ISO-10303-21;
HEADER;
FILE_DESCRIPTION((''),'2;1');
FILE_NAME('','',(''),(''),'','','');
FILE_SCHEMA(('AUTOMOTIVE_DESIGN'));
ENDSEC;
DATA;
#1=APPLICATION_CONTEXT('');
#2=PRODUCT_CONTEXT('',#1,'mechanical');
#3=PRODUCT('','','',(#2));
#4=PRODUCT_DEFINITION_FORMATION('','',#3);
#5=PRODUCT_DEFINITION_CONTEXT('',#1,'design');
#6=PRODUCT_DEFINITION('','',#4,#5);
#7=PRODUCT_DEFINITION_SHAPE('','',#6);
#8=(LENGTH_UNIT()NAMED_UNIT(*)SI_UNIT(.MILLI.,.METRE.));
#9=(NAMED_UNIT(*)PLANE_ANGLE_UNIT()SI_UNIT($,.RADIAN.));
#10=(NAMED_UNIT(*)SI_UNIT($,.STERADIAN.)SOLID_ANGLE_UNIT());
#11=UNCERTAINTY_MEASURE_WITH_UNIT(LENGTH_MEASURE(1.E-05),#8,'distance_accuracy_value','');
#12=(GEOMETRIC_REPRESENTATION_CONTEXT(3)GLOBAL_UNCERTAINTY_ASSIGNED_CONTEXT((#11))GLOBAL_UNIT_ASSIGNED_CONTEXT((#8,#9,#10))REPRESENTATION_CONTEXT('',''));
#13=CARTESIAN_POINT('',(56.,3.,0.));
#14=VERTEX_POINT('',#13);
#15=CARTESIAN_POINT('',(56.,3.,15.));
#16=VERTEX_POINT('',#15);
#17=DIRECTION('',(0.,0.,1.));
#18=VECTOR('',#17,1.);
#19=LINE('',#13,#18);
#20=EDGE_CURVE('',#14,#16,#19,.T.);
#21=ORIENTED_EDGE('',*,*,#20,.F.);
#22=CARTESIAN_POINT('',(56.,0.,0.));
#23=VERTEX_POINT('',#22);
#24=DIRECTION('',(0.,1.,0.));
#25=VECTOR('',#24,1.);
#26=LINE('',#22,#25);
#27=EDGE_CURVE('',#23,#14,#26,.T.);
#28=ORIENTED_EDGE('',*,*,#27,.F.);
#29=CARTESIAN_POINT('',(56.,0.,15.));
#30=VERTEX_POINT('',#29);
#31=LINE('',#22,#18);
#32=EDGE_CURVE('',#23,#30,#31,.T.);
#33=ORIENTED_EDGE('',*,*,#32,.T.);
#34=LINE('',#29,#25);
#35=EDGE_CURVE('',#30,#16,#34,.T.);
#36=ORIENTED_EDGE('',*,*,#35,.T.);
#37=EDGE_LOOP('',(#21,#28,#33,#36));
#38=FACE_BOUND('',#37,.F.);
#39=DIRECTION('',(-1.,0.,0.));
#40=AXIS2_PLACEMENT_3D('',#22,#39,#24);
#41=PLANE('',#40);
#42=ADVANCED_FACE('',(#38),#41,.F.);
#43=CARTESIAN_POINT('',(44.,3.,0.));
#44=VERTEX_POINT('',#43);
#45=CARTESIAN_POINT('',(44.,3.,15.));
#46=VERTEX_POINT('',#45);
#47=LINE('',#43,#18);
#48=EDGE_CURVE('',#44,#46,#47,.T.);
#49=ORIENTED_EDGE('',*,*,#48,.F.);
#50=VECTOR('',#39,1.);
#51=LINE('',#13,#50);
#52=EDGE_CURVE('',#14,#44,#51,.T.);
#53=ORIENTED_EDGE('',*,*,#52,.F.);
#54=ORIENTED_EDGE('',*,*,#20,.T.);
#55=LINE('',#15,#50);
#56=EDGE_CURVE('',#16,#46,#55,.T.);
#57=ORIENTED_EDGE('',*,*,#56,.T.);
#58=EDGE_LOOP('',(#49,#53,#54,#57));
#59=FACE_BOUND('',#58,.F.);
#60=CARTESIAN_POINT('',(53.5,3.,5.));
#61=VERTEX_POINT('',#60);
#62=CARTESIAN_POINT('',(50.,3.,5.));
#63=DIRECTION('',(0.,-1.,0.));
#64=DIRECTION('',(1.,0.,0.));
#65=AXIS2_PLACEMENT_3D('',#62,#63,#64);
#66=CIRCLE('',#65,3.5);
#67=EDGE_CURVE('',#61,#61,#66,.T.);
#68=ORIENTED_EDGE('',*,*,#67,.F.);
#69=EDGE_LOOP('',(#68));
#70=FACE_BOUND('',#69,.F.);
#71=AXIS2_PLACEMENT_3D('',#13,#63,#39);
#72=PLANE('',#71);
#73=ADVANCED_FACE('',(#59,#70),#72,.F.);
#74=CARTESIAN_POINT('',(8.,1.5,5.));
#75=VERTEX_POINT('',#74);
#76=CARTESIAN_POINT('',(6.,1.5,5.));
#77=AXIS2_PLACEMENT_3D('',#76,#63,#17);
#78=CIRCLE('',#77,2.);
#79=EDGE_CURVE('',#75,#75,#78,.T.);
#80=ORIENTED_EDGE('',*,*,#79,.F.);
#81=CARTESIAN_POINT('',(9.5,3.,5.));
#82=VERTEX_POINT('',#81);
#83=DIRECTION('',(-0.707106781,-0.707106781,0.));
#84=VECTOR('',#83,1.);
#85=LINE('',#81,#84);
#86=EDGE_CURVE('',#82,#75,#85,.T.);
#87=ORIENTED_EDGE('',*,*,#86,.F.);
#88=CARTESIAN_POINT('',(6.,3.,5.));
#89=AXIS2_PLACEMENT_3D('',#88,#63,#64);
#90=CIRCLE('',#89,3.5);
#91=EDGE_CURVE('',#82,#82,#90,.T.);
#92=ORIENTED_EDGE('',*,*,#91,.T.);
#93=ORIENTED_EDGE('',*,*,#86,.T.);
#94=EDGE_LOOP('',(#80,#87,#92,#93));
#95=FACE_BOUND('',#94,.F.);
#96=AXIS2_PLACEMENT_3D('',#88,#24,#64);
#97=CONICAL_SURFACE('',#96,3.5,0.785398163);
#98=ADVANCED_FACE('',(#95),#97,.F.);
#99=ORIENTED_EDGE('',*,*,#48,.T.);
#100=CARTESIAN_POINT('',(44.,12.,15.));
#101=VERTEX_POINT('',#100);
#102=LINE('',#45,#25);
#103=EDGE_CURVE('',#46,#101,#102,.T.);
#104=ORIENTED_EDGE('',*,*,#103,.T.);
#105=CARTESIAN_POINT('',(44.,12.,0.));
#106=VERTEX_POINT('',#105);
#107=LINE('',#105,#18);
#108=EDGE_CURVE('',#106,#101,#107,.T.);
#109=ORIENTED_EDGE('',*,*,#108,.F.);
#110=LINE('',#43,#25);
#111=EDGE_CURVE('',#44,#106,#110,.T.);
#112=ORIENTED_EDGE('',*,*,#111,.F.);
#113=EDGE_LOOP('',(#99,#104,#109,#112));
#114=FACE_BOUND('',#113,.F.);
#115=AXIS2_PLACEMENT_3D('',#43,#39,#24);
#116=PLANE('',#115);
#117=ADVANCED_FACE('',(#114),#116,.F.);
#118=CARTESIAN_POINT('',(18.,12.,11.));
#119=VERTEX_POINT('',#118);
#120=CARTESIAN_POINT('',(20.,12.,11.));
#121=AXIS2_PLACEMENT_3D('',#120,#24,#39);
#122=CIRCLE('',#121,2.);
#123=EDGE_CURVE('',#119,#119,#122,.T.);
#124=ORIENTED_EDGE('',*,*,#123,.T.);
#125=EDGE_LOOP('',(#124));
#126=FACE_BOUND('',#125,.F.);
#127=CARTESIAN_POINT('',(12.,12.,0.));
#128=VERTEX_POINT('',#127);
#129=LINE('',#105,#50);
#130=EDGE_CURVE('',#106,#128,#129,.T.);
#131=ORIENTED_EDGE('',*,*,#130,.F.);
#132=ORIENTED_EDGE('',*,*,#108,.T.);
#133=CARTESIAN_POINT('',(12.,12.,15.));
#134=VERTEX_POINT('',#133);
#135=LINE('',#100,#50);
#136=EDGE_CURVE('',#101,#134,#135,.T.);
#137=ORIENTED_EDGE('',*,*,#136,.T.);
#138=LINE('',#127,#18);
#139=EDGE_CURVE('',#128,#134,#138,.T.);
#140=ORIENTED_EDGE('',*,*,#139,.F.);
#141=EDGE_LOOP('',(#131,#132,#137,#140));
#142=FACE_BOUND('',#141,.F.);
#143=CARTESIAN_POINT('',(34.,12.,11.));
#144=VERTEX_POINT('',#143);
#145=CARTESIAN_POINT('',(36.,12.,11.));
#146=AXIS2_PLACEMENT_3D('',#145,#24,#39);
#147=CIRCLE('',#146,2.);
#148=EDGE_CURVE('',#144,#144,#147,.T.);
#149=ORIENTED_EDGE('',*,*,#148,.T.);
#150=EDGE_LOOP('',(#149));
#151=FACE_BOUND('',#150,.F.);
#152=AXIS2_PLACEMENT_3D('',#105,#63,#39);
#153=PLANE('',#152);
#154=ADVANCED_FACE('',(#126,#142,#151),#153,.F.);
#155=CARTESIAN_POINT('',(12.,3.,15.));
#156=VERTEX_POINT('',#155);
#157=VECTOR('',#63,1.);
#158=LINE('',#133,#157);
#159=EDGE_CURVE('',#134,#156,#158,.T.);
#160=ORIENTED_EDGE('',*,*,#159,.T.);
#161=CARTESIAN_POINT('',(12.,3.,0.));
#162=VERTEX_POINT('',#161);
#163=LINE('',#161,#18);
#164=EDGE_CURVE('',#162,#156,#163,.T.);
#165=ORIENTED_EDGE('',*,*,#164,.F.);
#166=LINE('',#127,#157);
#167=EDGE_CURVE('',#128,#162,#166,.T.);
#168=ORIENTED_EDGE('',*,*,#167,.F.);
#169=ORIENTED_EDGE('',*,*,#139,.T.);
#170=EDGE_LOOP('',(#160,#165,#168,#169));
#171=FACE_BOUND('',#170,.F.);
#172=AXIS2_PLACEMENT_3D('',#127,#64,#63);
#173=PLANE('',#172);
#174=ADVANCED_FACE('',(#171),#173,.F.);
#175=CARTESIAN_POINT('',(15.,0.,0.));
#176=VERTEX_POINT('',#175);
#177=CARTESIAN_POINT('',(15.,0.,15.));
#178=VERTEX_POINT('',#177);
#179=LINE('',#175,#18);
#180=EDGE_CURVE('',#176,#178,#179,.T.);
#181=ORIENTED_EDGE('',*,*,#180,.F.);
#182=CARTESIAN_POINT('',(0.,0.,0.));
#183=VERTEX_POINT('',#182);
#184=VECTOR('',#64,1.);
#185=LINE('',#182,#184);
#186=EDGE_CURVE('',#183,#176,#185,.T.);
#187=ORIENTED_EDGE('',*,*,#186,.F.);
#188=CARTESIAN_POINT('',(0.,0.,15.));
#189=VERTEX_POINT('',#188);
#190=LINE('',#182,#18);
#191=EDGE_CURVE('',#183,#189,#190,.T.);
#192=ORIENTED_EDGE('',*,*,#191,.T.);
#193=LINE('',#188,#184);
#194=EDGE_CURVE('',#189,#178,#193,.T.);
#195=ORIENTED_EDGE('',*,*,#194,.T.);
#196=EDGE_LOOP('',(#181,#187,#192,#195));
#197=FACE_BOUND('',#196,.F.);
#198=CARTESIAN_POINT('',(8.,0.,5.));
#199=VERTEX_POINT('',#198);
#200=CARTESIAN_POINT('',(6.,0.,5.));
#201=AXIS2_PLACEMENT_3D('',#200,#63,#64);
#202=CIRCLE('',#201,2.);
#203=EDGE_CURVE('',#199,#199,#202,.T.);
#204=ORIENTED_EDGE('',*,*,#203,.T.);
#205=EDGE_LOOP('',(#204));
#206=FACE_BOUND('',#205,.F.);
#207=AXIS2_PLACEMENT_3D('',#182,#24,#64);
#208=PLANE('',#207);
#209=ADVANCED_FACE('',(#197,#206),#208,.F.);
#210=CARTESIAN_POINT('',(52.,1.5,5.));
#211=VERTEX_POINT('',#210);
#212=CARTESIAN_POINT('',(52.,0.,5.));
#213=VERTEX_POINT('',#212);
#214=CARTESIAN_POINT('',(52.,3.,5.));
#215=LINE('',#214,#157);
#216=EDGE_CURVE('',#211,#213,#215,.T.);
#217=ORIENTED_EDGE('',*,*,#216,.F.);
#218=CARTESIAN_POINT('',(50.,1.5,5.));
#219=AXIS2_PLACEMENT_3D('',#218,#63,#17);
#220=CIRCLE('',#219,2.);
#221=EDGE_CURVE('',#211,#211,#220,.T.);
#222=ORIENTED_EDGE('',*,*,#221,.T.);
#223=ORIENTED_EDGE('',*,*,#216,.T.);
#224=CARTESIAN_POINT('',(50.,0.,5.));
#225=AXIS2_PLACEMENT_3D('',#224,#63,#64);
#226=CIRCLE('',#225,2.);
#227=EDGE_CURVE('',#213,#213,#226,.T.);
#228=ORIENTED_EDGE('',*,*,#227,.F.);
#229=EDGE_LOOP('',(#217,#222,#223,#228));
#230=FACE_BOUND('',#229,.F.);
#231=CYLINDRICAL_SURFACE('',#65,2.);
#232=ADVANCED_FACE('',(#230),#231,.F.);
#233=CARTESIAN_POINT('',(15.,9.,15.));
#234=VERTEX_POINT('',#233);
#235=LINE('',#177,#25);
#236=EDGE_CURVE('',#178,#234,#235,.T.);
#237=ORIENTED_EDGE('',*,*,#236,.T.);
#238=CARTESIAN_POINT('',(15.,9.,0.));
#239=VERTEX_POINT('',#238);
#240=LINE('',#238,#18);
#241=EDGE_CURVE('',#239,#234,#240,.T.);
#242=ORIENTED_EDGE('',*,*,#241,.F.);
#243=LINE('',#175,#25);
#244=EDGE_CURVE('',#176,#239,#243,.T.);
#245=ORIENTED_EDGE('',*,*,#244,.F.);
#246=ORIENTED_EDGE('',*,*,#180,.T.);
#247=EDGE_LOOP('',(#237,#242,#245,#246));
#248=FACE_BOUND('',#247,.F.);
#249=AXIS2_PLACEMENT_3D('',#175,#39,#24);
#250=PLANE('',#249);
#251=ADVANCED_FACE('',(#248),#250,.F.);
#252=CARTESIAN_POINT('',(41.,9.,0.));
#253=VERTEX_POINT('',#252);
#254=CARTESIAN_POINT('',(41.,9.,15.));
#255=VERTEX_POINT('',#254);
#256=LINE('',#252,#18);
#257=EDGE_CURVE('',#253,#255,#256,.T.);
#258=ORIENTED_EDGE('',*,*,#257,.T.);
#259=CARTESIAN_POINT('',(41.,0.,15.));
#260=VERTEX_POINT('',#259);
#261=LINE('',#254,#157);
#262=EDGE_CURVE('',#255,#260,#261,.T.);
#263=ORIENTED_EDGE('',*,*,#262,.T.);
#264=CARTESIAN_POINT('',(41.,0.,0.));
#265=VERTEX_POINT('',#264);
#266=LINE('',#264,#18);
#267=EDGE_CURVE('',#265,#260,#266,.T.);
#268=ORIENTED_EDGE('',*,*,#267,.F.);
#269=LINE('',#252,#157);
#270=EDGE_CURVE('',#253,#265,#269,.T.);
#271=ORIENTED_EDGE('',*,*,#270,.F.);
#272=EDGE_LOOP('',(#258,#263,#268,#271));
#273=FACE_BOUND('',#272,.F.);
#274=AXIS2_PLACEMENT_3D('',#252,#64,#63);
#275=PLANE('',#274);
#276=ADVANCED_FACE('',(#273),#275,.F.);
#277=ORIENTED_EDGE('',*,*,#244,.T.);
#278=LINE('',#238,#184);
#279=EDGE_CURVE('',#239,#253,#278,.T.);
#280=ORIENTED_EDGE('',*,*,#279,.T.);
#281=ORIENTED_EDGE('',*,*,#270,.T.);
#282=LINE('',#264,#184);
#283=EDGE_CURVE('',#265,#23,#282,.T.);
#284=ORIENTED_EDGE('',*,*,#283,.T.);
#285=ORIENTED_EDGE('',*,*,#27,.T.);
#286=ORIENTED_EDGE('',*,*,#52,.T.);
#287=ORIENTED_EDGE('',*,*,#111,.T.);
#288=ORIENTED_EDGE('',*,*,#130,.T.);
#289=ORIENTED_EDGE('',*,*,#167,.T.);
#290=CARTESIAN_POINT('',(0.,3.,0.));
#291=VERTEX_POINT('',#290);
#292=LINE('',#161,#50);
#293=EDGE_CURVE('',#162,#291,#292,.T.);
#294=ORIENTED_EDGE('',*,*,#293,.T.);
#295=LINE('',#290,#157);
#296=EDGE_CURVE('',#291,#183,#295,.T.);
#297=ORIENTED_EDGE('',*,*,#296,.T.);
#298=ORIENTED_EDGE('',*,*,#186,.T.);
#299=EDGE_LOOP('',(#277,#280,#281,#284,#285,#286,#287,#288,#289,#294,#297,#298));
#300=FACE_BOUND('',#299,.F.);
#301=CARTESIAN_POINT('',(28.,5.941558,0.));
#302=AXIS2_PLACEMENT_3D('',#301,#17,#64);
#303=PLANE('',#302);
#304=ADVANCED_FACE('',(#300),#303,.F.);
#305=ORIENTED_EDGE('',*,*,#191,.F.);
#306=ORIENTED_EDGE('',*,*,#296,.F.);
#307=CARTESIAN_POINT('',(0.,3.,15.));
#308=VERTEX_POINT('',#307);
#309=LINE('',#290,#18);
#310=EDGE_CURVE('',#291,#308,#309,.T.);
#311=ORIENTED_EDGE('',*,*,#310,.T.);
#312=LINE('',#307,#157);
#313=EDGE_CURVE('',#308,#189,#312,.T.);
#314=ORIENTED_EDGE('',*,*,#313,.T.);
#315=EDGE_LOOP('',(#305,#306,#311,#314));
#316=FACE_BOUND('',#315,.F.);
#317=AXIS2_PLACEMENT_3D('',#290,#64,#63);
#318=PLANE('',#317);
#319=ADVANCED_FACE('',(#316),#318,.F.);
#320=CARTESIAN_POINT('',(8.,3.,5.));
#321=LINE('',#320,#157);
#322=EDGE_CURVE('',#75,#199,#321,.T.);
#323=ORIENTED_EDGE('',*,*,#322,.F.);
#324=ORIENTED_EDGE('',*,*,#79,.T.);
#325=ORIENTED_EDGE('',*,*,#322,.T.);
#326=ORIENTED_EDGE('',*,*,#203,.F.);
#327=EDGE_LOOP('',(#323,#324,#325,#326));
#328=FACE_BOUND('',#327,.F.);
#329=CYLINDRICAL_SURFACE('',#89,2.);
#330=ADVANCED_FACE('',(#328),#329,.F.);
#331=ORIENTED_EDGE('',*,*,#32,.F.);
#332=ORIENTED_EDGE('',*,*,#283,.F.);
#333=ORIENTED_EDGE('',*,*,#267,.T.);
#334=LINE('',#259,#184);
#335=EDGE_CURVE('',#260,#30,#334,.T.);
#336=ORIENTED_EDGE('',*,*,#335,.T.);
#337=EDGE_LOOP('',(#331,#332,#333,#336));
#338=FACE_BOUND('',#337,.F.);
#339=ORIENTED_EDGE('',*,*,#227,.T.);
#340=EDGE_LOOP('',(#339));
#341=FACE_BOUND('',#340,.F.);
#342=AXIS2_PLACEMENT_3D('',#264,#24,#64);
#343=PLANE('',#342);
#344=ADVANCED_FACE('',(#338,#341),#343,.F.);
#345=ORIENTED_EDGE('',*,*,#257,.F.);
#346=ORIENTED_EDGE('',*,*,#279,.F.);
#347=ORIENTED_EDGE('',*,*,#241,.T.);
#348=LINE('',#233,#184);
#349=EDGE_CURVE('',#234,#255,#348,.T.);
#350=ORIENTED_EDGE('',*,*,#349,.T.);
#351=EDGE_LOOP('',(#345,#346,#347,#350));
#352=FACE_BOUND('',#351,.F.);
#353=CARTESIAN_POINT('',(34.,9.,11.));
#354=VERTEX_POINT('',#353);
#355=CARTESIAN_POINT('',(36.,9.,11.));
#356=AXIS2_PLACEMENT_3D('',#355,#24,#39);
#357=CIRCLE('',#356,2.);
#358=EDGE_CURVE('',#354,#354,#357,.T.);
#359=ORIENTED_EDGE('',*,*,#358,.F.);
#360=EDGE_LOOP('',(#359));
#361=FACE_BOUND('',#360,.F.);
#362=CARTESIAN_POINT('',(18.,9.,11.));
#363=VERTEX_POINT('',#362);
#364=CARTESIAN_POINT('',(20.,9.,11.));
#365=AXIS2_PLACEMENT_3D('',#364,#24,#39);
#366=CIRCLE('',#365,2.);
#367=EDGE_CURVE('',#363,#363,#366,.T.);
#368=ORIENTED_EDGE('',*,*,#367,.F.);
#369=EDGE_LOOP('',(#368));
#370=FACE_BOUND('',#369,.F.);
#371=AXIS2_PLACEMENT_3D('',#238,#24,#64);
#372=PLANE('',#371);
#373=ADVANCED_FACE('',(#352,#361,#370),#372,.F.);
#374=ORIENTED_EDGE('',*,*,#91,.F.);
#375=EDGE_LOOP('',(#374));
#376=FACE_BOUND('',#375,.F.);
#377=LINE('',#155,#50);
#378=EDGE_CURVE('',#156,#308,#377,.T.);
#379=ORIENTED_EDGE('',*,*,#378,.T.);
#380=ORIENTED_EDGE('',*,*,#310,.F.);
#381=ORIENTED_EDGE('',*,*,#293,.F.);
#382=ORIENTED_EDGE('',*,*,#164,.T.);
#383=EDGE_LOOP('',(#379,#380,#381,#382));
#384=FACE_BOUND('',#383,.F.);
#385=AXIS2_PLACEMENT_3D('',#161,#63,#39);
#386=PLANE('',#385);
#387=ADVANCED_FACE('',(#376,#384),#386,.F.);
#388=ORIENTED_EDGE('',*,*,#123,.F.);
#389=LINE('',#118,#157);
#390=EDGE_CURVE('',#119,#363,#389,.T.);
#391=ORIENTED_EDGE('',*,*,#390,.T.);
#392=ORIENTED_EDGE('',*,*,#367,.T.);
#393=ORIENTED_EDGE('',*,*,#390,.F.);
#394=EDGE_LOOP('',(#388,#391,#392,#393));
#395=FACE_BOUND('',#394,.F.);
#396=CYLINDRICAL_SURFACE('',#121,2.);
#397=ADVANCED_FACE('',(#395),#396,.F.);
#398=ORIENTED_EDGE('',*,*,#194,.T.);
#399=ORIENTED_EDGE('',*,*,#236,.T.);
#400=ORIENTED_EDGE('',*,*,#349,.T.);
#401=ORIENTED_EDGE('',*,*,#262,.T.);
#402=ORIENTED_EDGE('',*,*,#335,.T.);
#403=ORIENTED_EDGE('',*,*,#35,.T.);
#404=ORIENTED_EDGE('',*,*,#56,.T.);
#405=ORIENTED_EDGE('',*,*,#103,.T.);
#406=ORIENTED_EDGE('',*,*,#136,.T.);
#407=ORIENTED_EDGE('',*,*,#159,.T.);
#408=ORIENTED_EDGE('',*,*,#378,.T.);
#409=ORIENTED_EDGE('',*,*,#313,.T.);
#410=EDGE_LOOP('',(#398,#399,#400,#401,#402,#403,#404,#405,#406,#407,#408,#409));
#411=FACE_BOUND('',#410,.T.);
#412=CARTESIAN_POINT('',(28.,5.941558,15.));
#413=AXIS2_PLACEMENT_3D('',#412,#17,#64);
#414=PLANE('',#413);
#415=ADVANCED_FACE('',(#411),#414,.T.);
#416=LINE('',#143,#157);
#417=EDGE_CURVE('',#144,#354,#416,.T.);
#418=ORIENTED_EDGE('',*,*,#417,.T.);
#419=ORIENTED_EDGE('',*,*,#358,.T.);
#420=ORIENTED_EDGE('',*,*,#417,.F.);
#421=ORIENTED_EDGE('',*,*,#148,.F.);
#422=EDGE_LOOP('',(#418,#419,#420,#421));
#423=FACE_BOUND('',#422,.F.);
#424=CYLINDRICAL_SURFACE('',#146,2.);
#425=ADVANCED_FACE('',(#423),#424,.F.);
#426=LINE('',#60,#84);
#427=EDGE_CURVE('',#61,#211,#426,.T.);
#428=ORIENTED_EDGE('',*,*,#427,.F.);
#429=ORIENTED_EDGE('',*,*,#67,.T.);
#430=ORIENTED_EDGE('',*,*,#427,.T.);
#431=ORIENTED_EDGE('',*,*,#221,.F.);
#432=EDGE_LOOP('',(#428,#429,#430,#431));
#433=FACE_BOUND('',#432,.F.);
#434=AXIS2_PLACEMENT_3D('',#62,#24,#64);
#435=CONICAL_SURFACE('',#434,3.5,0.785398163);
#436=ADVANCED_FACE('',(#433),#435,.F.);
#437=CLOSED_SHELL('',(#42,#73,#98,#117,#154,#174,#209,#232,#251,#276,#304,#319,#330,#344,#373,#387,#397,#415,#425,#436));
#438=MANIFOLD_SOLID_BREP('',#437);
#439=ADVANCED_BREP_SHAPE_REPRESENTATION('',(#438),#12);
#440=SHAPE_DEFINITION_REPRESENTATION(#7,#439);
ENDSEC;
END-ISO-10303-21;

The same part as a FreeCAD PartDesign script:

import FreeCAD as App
import Part
import Sketcher

V = App.Vector
Q = App.Units.Quantity

doc = App.newDocument("Part")
body = doc.addObject("PartDesign::Body", "Body")

# Sketch on XY plane
sketch1 = body.newObject("Sketcher::SketchObject", "Sketch")
sketch1.AttachmentSupport = (doc.getObject("XY_Plane"), [""])
sketch1.MapMode = "FlatFace"
sketch1.addGeometry([
    Part.LineSegment(V(0, 3, 0), V(0, 0, 0)),  # 0
    Part.LineSegment(V(0, 0, 0), V(15, 0, 0)),  # 1
    Part.LineSegment(V(15, 0, 0), V(15, 9, 0)),  # 2
    Part.LineSegment(V(15, 9, 0), V(41, 9, 0)),  # 3
    Part.LineSegment(V(41, 9, 0), V(41, 0, 0)),  # 4
    Part.LineSegment(V(41, 0, 0), V(56, 0, 0)),  # 5
    Part.LineSegment(V(56, 0, 0), V(56, 3, 0)),  # 6
    Part.LineSegment(V(56, 3, 0), V(44, 3, 0)),  # 7
    Part.LineSegment(V(44, 3, 0), V(44, 12, 0)),  # 8
    Part.LineSegment(V(44, 12, 0), V(12, 12, 0)),  # 9
    Part.LineSegment(V(12, 12, 0), V(12, 3, 0)),  # 10
    Part.LineSegment(V(12, 3, 0), V(0, 3, 0)),  # 11
], False)
sketch1.addConstraint([
    Sketcher.Constraint("Coincident", 0, 2, 1, 1),
    Sketcher.Constraint("Coincident", 1, 2, 2, 1),
    Sketcher.Constraint("Coincident", 2, 2, 3, 1),
    Sketcher.Constraint("Coincident", 3, 2, 4, 1),
    Sketcher.Constraint("Coincident", 4, 2, 5, 1),
    Sketcher.Constraint("Coincident", 5, 2, 6, 1),
    Sketcher.Constraint("Coincident", 6, 2, 7, 1),
    Sketcher.Constraint("Coincident", 7, 2, 8, 1),
    Sketcher.Constraint("Coincident", 8, 2, 9, 1),
    Sketcher.Constraint("Coincident", 9, 2, 10, 1),
    Sketcher.Constraint("Coincident", 10, 2, 11, 1),
    Sketcher.Constraint("Coincident", 11, 2, 0, 1),
    Sketcher.Constraint("Vertical", 0),
    Sketcher.Constraint("Horizontal", 1),
    Sketcher.Constraint("Vertical", 2),
    Sketcher.Constraint("Horizontal", 3),
    Sketcher.Constraint("Vertical", 4),
    Sketcher.Constraint("Horizontal", 5),
    Sketcher.Constraint("Vertical", 6),
    Sketcher.Constraint("Horizontal", 7),
    Sketcher.Constraint("Vertical", 8),
    Sketcher.Constraint("Horizontal", 9),
    Sketcher.Constraint("Vertical", 10),
    Sketcher.Constraint("Horizontal", 11),
    Sketcher.Constraint("Coincident", 0, 2, -1, 1),
    Sketcher.Constraint("PointOnObject", 4, 2, -1),
    Sketcher.Constraint("Horizontal", 7, 2, 10, 2),
    Sketcher.Constraint("Equal", 1, 5),
    Sketcher.Constraint("Equal", 7, 11),
    Sketcher.Constraint("Equal", 4, 8),
    Sketcher.Constraint("DistanceX", 1, 1, 1, 2, Q("15 mm")),
    Sketcher.Constraint("DistanceX", 3, 1, 3, 2, Q("26 mm")),
    Sketcher.Constraint("DistanceX", 7, 2, 7, 1, Q("12 mm")),
    Sketcher.Constraint("DistanceY", 0, 2, 0, 1, Q("3 mm")),
    Sketcher.Constraint("DistanceY", 2, 1, 2, 2, Q("9 mm")),
])
pad1 = body.newObject("PartDesign::Pad", "Pad")
pad1.Profile = sketch1
pad1.Length = 15

# Sketch on XZ plane
sketch2 = body.newObject("Sketcher::SketchObject", "Sketch001")
sketch2.AttachmentSupport = (doc.getObject("XZ_Plane"), [""])
sketch2.MapMode = "FlatFace"
sketch2.AttachmentOffset = App.Placement(V(0, 0, -12), App.Rotation())
sketch2.addGeometry([
    Part.Circle(V(36, 11, 0), V(0, 0, 1), 2),
    Part.Circle(V(20, 11, 0), V(0, 0, 1), 2),
], False)
sketch2.addConstraint([
    Sketcher.Constraint("Equal", 0, 1),
    Sketcher.Constraint("Horizontal", 0, 3, 1, 3),
    Sketcher.Constraint("Diameter", 0, Q("4 mm")),
    Sketcher.Constraint("DistanceX", -1, 1, 0, 3, Q("36 mm")),
    Sketcher.Constraint("DistanceY", -1, 1, 0, 3, Q("11 mm")),
    Sketcher.Constraint("DistanceX", -1, 1, 1, 3, Q("20 mm")),
])
pocket1 = body.newObject("PartDesign::Pocket", "Pocket")
pocket1.Profile = sketch2
pocket1.Length = 25
pocket1.Reversed = True

# Sketch on XZ plane
sketch3 = body.newObject("Sketcher::SketchObject", "Sketch002")
sketch3.AttachmentSupport = (doc.getObject("XZ_Plane"), [""])
sketch3.MapMode = "FlatFace"
sketch3.AttachmentOffset = App.Placement(V(0, 0, -3), App.Rotation())
sketch3.addGeometry([
    Part.Circle(V(6, 5, 0), V(0, 0, 1), 2),
    Part.Circle(V(50, 5, 0), V(0, 0, 1), 2),
], False)
sketch3.addConstraint([
    Sketcher.Constraint("Equal", 0, 1),
    Sketcher.Constraint("Horizontal", 0, 3, 1, 3),
    Sketcher.Constraint("Diameter", 0, Q("4 mm")),
    Sketcher.Constraint("DistanceX", -1, 1, 0, 3, Q("6 mm")),
    Sketcher.Constraint("DistanceY", -1, 1, 0, 3, Q("5 mm")),
    Sketcher.Constraint("DistanceX", -1, 1, 1, 3, Q("50 mm")),
])
doc.recompute()
hole = body.newObject("PartDesign::Hole", "Hole")
hole.Profile = sketch3
hole.ThreadType = "None"
hole.Diameter = 4
hole.DepthType = "ThroughAll"
hole.HoleCutType = "Countersink"
hole.HoleCutDiameter = 7
hole.HoleCutCountersinkAngle = 90
hole.Reversed = True

doc.recompute()
